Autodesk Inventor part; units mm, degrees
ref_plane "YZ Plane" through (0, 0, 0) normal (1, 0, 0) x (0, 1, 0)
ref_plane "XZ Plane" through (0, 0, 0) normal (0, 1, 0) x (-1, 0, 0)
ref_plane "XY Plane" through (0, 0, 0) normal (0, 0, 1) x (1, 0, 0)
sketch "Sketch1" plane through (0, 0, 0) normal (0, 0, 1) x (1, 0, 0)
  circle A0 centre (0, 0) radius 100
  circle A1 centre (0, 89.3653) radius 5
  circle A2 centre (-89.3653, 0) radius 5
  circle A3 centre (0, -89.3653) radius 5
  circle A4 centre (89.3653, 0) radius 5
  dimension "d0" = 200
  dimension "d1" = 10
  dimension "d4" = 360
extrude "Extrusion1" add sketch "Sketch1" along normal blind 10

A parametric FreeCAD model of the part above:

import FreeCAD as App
import Part
import Sketcher

doc = App.newDocument("Part")
params = doc.addObject("Spreadsheet::Sheet", "Params")
for row, (alias, value) in enumerate([
    ("sketch1_diameter", "200 mm"),
    ("sketch1_diameter2", "10 mm"),
    ("pad1_length", "10 mm"),
], start=1):
    params.set(f"A{row}", alias)
    params.set(f"B{row}", "=" + value)
    params.setAlias(f"B{row}", alias)

body = doc.addObject("PartDesign::Body", "Body")

sketch1 = body.newObject("Sketcher::SketchObject", "Sketch")
sketch1.AttachmentSupport = (doc.getObject("XY_Plane"), [""])
sketch1.MapMode = "FlatFace"
sketch1.addGeometry([
    Part.Circle(App.Vector(0, 0, 0), App.Vector(0, 0, 1), 100),
    Part.Circle(App.Vector(0, -89, 0), App.Vector(0, 0, 1), 5),
    Part.Circle(App.Vector(-89, 0, 0), App.Vector(0, 0, 1), 5),
    Part.Circle(App.Vector(89, 0, 0), App.Vector(0, 0, 1), 5),
    Part.Circle(App.Vector(0, 89, 0), App.Vector(0, 0, 1), 5),
], False)
sketch1.addConstraint([
    Sketcher.Constraint("Coincident", 0, 3, -1, 1),
    Sketcher.Constraint("Equal", 1, 2),
    Sketcher.Constraint("Equal", 2, 3),
    Sketcher.Constraint("Equal", 3, 4),
    Sketcher.Constraint("Symmetric", 2, 3, 3, 3, -1, 1),
    Sketcher.Constraint("Symmetric", 1, 3, 4, 3, -1, 1),
    Sketcher.Constraint("PointOnObject", 1, 3, -2),
    Sketcher.Constraint("PointOnObject", 2, 3, -1),
    Sketcher.Constraint("Diameter", 0, 200.0),
    Sketcher.Constraint("Diameter", 1, 10.0),
    Sketcher.Constraint("DistanceY", 1, 3, -1, 1, 89.3653),
    Sketcher.Constraint("DistanceX", 2, 3, -1, 1, 89.3653),
])
sketch1.setExpression("Constraints[8]", "Params.sketch1_diameter")
sketch1.setExpression("Constraints[9]", "Params.sketch1_diameter2")
pad1 = body.newObject("PartDesign::Pad", "Pad")
pad1.Profile = sketch1
pad1.setExpression("Length", "Params.pad1_length")

doc.recompute()
